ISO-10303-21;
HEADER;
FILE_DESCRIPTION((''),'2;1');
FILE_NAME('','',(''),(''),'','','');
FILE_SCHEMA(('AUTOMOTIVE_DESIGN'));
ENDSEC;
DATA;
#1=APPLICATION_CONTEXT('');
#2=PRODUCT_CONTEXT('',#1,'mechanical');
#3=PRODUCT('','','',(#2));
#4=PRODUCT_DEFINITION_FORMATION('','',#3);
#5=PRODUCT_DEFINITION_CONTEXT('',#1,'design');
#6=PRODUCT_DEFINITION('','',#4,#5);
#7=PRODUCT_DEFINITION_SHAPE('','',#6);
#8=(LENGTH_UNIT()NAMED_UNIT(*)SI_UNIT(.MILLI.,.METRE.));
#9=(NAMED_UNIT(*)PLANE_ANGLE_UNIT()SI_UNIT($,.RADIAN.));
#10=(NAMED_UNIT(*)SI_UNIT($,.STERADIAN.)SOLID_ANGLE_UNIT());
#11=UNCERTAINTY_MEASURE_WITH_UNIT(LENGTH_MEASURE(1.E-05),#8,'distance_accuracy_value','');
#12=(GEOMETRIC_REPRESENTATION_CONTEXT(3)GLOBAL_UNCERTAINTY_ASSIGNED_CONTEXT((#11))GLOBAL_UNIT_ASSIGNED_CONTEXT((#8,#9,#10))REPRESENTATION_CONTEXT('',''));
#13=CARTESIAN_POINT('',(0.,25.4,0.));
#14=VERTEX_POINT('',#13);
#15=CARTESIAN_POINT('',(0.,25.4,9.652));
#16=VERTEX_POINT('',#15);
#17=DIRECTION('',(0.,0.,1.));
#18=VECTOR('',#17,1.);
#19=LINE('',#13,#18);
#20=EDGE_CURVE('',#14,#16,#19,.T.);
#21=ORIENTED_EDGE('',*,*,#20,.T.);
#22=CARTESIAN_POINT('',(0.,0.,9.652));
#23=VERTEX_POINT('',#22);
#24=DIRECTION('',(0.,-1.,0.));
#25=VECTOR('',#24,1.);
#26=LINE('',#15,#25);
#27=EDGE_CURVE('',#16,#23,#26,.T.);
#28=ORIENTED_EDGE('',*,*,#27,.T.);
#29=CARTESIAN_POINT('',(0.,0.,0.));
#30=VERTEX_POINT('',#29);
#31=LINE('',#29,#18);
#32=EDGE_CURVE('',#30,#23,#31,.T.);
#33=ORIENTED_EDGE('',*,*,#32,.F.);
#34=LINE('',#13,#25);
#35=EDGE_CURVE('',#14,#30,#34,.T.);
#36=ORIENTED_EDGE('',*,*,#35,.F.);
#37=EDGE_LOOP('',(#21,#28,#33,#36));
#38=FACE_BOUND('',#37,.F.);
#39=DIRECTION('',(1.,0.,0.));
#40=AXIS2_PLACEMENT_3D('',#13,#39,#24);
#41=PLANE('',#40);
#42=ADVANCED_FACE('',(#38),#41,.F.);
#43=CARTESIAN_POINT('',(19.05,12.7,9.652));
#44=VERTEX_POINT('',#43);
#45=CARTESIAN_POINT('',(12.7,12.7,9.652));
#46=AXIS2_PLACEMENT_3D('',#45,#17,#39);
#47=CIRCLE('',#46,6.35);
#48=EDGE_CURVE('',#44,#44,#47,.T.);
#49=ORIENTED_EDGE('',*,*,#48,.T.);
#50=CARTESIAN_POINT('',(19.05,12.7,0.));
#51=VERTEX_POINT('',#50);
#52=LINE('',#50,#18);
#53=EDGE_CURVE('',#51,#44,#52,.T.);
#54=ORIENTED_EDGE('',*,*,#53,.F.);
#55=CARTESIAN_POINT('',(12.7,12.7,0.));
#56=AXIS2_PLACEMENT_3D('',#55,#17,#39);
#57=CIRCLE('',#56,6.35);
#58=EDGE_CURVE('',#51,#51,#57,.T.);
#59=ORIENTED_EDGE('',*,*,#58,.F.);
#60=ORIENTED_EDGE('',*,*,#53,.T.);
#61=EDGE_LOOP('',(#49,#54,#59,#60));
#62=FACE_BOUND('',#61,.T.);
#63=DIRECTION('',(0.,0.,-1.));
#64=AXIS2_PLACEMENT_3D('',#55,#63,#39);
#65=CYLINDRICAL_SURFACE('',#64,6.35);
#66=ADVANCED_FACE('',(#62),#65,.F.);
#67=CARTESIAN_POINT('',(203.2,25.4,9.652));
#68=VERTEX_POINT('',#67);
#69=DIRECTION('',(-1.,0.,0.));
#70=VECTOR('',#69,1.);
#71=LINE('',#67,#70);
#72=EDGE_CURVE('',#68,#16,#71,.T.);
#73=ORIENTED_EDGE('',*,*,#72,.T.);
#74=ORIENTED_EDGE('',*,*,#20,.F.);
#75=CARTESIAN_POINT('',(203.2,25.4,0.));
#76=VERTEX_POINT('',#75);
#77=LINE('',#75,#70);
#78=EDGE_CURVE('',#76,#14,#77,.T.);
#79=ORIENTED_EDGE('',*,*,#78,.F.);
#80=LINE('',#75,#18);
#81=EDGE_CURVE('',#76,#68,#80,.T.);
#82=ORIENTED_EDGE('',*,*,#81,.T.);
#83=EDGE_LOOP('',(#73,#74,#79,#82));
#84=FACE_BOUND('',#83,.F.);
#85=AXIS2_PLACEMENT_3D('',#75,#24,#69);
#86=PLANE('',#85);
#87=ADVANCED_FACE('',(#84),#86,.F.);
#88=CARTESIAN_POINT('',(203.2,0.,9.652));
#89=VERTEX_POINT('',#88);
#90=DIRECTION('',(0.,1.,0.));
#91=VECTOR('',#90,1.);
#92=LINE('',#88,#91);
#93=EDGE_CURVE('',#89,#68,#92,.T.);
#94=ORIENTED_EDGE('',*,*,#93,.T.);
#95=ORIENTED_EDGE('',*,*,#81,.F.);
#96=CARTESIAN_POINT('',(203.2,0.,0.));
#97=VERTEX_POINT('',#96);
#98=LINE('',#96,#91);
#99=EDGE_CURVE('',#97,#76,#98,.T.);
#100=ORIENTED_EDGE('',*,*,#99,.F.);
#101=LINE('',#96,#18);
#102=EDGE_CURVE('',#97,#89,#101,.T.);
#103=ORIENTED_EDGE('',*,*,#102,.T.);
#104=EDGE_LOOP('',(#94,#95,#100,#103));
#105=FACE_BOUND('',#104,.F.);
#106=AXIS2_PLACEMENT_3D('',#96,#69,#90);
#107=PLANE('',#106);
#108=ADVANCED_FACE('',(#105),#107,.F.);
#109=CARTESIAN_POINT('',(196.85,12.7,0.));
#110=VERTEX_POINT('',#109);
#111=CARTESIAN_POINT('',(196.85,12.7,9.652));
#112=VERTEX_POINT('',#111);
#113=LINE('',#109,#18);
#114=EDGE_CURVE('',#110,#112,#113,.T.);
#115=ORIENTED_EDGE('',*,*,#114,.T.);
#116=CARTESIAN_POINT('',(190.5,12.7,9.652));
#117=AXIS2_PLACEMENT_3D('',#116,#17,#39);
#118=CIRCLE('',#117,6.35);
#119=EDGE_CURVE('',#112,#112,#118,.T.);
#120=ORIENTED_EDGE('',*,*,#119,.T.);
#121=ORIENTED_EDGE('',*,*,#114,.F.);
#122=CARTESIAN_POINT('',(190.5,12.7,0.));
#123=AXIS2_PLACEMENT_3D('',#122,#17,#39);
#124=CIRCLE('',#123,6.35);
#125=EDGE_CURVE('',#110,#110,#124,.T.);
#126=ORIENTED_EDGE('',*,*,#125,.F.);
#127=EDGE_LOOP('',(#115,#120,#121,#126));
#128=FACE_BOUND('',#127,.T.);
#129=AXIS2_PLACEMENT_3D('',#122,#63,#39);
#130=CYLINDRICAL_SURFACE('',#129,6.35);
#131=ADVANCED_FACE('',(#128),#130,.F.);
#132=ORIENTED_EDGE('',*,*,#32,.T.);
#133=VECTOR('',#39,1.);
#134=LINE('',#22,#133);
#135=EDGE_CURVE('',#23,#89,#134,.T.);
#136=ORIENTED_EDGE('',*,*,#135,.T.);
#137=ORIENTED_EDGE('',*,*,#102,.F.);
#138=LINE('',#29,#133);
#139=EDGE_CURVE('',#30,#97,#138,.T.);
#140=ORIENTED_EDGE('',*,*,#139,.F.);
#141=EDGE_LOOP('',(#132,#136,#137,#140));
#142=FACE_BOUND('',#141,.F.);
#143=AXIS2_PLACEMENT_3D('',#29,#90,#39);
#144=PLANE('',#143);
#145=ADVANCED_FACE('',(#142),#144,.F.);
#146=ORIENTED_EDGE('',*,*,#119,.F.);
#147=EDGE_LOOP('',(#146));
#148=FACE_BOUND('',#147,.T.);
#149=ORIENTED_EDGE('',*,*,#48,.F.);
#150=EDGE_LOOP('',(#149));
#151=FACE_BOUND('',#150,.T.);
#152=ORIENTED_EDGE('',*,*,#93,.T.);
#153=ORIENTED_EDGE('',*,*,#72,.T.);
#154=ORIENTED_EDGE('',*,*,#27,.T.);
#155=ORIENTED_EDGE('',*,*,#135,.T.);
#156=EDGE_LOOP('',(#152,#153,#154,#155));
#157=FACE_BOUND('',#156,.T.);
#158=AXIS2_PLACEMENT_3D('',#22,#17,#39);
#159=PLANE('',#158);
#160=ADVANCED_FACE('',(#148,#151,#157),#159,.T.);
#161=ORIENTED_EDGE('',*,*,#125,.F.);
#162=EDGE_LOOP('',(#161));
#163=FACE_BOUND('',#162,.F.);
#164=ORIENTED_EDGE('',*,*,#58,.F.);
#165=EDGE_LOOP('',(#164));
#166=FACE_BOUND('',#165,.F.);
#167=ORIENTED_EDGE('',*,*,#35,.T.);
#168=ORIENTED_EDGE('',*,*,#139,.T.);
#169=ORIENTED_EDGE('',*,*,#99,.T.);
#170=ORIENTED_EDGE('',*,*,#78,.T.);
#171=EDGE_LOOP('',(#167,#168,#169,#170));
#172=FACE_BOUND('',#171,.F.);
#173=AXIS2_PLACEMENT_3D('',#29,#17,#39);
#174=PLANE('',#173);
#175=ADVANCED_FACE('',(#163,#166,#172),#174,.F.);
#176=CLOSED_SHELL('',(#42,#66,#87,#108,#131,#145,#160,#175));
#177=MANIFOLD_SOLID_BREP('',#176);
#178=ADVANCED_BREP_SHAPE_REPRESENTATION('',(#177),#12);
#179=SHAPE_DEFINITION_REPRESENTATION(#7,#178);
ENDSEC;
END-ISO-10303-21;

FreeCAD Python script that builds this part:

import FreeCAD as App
import Part
import Sketcher
from FreeCAD import Vector
Q = App.Units.Quantity

doc = App.newDocument("Part")
body = doc.addObject("PartDesign::Body", "Body")

sketch1 = body.newObject("Sketcher::SketchObject", "Sketch")
sketch1.AttachmentSupport = (doc.getObject("XY_Plane"), [""])
sketch1.MapMode = "FlatFace"
sketch1.addGeometry(Part.LineSegment(Vector(0, 25, 0), Vector(0, 0, 0)), False)
sketch1.addGeometry(Part.LineSegment(Vector(0, 0, 0), Vector(203, 0, 0)), False)
sketch1.addGeometry(Part.LineSegment(Vector(203, 0, 0), Vector(203, 25, 0)), False)
sketch1.addGeometry(Part.LineSegment(Vector(203, 25, 0), Vector(0, 25, 0)), False)
sketch1.addGeometry(Part.Circle(Vector(13, 13, 0), Vector(0, 0, 1), 6), False)
sketch1.addGeometry(Part.Circle(Vector(190, 13, 0), Vector(0, 0, 1), 6), False)
sketch1.addConstraint(Sketcher.Constraint("Coincident", 0, 2, 1, 1))
sketch1.addConstraint(Sketcher.Constraint("Coincident", 1, 2, 2, 1))
sketch1.addConstraint(Sketcher.Constraint("Coincident", 2, 2, 3, 1))
sketch1.addConstraint(Sketcher.Constraint("Coincident", 3, 2, 0, 1))
sketch1.addConstraint(Sketcher.Constraint("Vertical", 0))
sketch1.addConstraint(Sketcher.Constraint("Horizontal", 1))
sketch1.addConstraint(Sketcher.Constraint("Vertical", 2))
sketch1.addConstraint(Sketcher.Constraint("Horizontal", 3))
sketch1.addConstraint(Sketcher.Constraint("Coincident", 0, 2, -1, 1))
sketch1.addConstraint(Sketcher.Constraint("Equal", 4, 5))
sketch1.addConstraint(Sketcher.Constraint("Horizontal", 4, 3, 5, 3))
sketch1.addConstraint(Sketcher.Constraint("Diameter", 4, Q("0.5 in")))
sketch1.addConstraint(Sketcher.Constraint("DistanceX", 1, 1, 1, 2, Q("8 in")))
sketch1.addConstraint(Sketcher.Constraint("DistanceY", 0, 2, 0, 1, Q("1 in")))
sketch1.addConstraint(Sketcher.Constraint("DistanceX", -1, 1, 4, 3, Q("0.5 in")))
sketch1.addConstraint(Sketcher.Constraint("DistanceY", -1, 1, 4, 3, Q("0.5 in")))
sketch1.addConstraint(Sketcher.Constraint("DistanceX", 5, 3, 1, 2, Q("0.5 in")))
pad1 = body.newObject("PartDesign::Pad", "Pad")
pad1.Profile = sketch1
pad1.Length = Q("0.38 in")

doc.recompute()
